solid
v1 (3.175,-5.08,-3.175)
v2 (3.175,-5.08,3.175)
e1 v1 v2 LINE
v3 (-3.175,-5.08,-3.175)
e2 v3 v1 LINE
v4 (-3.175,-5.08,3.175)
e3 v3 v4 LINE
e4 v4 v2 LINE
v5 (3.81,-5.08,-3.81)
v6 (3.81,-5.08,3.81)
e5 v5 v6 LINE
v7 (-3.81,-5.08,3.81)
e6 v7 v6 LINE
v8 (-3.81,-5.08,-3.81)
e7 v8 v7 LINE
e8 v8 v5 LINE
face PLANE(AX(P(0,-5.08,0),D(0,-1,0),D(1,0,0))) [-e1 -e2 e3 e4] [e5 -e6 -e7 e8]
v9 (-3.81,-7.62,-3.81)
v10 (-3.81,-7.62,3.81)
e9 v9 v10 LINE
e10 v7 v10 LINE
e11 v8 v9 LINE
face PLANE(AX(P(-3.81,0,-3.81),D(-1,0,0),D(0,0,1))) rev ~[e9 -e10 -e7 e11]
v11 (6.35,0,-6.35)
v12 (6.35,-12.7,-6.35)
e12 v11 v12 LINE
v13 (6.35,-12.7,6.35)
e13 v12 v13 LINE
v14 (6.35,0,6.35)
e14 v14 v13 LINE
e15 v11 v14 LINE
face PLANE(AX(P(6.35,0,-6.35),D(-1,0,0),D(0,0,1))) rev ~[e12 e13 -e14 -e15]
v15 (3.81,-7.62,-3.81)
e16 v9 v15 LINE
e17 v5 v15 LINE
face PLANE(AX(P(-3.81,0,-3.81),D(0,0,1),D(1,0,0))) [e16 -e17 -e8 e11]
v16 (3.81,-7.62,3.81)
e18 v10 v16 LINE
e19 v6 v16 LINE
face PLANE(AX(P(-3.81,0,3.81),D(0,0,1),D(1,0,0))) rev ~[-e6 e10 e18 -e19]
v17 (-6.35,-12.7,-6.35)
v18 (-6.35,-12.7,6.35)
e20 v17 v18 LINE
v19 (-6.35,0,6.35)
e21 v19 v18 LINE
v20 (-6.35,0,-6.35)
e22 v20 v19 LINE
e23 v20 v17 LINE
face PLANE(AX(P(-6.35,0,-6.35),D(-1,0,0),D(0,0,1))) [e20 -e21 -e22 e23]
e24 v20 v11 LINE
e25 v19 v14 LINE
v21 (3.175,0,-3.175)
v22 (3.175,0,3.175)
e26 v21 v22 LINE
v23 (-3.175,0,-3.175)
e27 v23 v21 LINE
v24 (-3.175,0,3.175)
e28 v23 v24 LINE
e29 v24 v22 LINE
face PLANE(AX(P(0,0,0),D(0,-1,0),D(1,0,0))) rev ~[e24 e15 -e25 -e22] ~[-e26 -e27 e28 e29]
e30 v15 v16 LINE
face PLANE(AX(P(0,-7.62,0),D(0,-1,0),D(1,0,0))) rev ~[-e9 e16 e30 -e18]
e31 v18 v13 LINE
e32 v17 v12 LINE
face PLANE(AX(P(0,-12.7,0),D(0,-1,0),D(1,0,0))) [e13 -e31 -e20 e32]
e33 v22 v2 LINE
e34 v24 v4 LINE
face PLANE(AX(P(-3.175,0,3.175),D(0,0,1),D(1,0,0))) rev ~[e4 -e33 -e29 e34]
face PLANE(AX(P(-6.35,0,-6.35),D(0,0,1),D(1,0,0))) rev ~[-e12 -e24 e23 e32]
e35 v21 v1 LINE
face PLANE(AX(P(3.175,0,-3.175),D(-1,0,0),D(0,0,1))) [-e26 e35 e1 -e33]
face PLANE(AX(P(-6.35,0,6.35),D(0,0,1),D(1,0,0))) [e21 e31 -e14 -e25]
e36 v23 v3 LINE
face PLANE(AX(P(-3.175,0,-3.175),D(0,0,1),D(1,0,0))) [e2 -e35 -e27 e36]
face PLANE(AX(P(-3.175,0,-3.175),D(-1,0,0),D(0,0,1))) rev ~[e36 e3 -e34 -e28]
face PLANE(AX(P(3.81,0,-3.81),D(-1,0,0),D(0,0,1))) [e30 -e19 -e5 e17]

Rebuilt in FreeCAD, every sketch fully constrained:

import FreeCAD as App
import Part
import Sketcher
Q = App.Units.Quantity


def add_polygon(sketch, points):
    """Adds a closed chain of lines whose ends are joined by coincident constraints."""
    first, n = sketch.GeometryCount, len(points)
    for a, b in zip(points, points[1:] + points[:1]):
        sketch.addGeometry(Part.LineSegment(App.Vector(*a, 0), App.Vector(*b, 0)), False)
    for i in range(n):
        sketch.addConstraint(Sketcher.Constraint("Coincident", first + i, 2, first + (i + 1) % n, 1))

doc = App.newDocument("Part")
params = doc.addObject("Spreadsheet::Sheet", "Params")
for row, (alias, value) in enumerate([
    ("sketch1_width", "0.5 in"),
    ("pad1_length", "0.5 in"),
    ("sketch2_width", "0.25 in"),
    ("pocket1_length", "0.3 in"),
    ("sketch3_width", "0.3 in"),
    ("sketch3_width2", "0.25 in"),
    ("pocket2_length", "0.3 in"),
    ("sketch4_width", "0.3 in"),
    ("sketch4_width2", "0.25 in"),
    ("pad2_length", "0.2 in"),
], start=1):
    params.set(f"A{row}", alias)
    params.set(f"B{row}", "=" + value)
    params.setAlias(f"B{row}", alias)

body = doc.addObject("PartDesign::Body", "Body")

# Sketch on XZ plane
sketch1 = body.newObject("Sketcher::SketchObject", "Sketch")
sketch1.AttachmentSupport = (doc.getObject("XZ_Plane"), [""])
sketch1.MapMode = "FlatFace"
add_polygon(sketch1, [(-6, 6), (-6, -6), (6, -6), (6, 6)])  # lines 0-3
sketch1.addConstraint(Sketcher.Constraint("Vertical", 0))
sketch1.addConstraint(Sketcher.Constraint("Horizontal", 1))
sketch1.addConstraint(Sketcher.Constraint("Vertical", 2))
sketch1.addConstraint(Sketcher.Constraint("Horizontal", 3))
sketch1.addConstraint(Sketcher.Constraint("Symmetric", 0, 2, 2, 2, -1, 1))
sketch1.addConstraint(Sketcher.Constraint("Equal", 3, 0))
sketch1.addConstraint(Sketcher.Constraint("DistanceX", 1, 1, 1, 2, Q("0.5 in")))
sketch1.setExpression("Constraints[10]", "Params.sketch1_width")
pad1 = body.newObject("PartDesign::Pad", "Pad")
pad1.Profile = sketch1
pad1.setExpression("Length", "Params.pad1_length")

# Sketch on XZ plane
sketch2 = body.newObject("Sketcher::SketchObject", "Sketch001")
sketch2.AttachmentSupport = (doc.getObject("XZ_Plane"), [""])
sketch2.MapMode = "FlatFace"
add_polygon(sketch2, [(-3, 3), (-3, -3), (3, -3), (3, 3)])  # lines 0-3
sketch2.addConstraint(Sketcher.Constraint("Vertical", 0))
sketch2.addConstraint(Sketcher.Constraint("Horizontal", 1))
sketch2.addConstraint(Sketcher.Constraint("Vertical", 2))
sketch2.addConstraint(Sketcher.Constraint("Horizontal", 3))
sketch2.addConstraint(Sketcher.Constraint("Symmetric", 0, 2, 2, 2, -1, 1))
sketch2.addConstraint(Sketcher.Constraint("Equal", 3, 0))
sketch2.addConstraint(Sketcher.Constraint("DistanceX", 1, 1, 1, 2, Q("0.25 in")))
sketch2.setExpression("Constraints[10]", "Params.sketch2_width")
pocket1 = body.newObject("PartDesign::Pocket", "Pocket")
pocket1.Profile = sketch2
pocket1.setExpression("Length", "Params.pocket1_length")
pocket1.Reversed = True

# Sketch on XZ plane
sketch3 = body.newObject("Sketcher::SketchObject", "Sketch002")
sketch3.AttachmentSupport = (doc.getObject("XZ_Plane"), [""])
sketch3.MapMode = "FlatFace"
add_polygon(sketch3, [(-4, 4), (-4, -4), (4, -4), (4, 4)])  # lines 0-3
add_polygon(sketch3, [(3, -3), (-3, -3), (-3, 3), (3, 3)])  # lines 4-7
sketch3.addConstraint(Sketcher.Constraint("Vertical", 0))
sketch3.addConstraint(Sketcher.Constraint("Horizontal", 1))
sketch3.addConstraint(Sketcher.Constraint("Vertical", 2))
sketch3.addConstraint(Sketcher.Constraint("Horizontal", 3))
sketch3.addConstraint(Sketcher.Constraint("Horizontal", 4))
sketch3.addConstraint(Sketcher.Constraint("Vertical", 5))
sketch3.addConstraint(Sketcher.Constraint("Horizontal", 6))
sketch3.addConstraint(Sketcher.Constraint("Vertical", 7))
sketch3.addConstraint(Sketcher.Constraint("Symmetric", 0, 2, 2, 2, -1, 1))
sketch3.addConstraint(Sketcher.Constraint("Symmetric", 4, 2, 6, 2, -1, 1))
sketch3.addConstraint(Sketcher.Constraint("Equal", 3, 0))
sketch3.addConstraint(Sketcher.Constraint("Equal", 6, 5))
sketch3.addConstraint(Sketcher.Constraint("DistanceX", 1, 1, 1, 2, Q("0.3 in")))
sketch3.addConstraint(Sketcher.Constraint("DistanceX", 4, 2, 4, 1, Q("0.25 in")))
sketch3.setExpression("Constraints[20]", "Params.sketch3_width")
sketch3.setExpression("Constraints[21]", "Params.sketch3_width2")
pocket2 = body.newObject("PartDesign::Pocket", "Pocket001")
pocket2.Profile = sketch3
pocket2.setExpression("Length", "Params.pocket2_length")
pocket2.Reversed = True

# Sketch on XZ plane
sketch4 = body.newObject("Sketcher::SketchObject", "Sketch003")
sketch4.AttachmentSupport = (doc.getObject("XZ_Plane"), [""])
sketch4.MapMode = "FlatFace"
add_polygon(sketch4, [(-4, 4), (-4, -4), (4, -4), (4, 4)])  # lines 0-3
add_polygon(sketch4, [(3, -3), (-3, -3), (-3, 3), (3, 3)])  # lines 4-7
sketch4.addConstraint(Sketcher.Constraint("Vertical", 0))
sketch4.addConstraint(Sketcher.Constraint("Horizontal", 1))
sketch4.addConstraint(Sketcher.Constraint("Vertical", 2))
sketch4.addConstraint(Sketcher.Constraint("Horizontal", 3))
sketch4.addConstraint(Sketcher.Constraint("Horizontal", 4))
sketch4.addConstraint(Sketcher.Constraint("Vertical", 5))
sketch4.addConstraint(Sketcher.Constraint("Horizontal", 6))
sketch4.addConstraint(Sketcher.Constraint("Vertical", 7))
sketch4.addConstraint(Sketcher.Constraint("Symmetric", 0, 2, 2, 2, -1, 1))
sketch4.addConstraint(Sketcher.Constraint("Symmetric", 4, 2, 6, 2, -1, 1))
sketch4.addConstraint(Sketcher.Constraint("Equal", 3, 0))
sketch4.addConstraint(Sketcher.Constraint("Equal", 6, 5))
sketch4.addConstraint(Sketcher.Constraint("DistanceX", 1, 1, 1, 2, Q("0.3 in")))
sketch4.addConstraint(Sketcher.Constraint("DistanceX", 4, 2, 4, 1, Q("0.25 in")))
sketch4.setExpression("Constraints[20]", "Params.sketch4_width")
sketch4.setExpression("Constraints[21]", "Params.sketch4_width2")
pad2 = body.newObject("PartDesign::Pad", "Pad001")
pad2.Profile = sketch4
pad2.setExpression("Length", "Params.pad2_length")

doc.recompute()
